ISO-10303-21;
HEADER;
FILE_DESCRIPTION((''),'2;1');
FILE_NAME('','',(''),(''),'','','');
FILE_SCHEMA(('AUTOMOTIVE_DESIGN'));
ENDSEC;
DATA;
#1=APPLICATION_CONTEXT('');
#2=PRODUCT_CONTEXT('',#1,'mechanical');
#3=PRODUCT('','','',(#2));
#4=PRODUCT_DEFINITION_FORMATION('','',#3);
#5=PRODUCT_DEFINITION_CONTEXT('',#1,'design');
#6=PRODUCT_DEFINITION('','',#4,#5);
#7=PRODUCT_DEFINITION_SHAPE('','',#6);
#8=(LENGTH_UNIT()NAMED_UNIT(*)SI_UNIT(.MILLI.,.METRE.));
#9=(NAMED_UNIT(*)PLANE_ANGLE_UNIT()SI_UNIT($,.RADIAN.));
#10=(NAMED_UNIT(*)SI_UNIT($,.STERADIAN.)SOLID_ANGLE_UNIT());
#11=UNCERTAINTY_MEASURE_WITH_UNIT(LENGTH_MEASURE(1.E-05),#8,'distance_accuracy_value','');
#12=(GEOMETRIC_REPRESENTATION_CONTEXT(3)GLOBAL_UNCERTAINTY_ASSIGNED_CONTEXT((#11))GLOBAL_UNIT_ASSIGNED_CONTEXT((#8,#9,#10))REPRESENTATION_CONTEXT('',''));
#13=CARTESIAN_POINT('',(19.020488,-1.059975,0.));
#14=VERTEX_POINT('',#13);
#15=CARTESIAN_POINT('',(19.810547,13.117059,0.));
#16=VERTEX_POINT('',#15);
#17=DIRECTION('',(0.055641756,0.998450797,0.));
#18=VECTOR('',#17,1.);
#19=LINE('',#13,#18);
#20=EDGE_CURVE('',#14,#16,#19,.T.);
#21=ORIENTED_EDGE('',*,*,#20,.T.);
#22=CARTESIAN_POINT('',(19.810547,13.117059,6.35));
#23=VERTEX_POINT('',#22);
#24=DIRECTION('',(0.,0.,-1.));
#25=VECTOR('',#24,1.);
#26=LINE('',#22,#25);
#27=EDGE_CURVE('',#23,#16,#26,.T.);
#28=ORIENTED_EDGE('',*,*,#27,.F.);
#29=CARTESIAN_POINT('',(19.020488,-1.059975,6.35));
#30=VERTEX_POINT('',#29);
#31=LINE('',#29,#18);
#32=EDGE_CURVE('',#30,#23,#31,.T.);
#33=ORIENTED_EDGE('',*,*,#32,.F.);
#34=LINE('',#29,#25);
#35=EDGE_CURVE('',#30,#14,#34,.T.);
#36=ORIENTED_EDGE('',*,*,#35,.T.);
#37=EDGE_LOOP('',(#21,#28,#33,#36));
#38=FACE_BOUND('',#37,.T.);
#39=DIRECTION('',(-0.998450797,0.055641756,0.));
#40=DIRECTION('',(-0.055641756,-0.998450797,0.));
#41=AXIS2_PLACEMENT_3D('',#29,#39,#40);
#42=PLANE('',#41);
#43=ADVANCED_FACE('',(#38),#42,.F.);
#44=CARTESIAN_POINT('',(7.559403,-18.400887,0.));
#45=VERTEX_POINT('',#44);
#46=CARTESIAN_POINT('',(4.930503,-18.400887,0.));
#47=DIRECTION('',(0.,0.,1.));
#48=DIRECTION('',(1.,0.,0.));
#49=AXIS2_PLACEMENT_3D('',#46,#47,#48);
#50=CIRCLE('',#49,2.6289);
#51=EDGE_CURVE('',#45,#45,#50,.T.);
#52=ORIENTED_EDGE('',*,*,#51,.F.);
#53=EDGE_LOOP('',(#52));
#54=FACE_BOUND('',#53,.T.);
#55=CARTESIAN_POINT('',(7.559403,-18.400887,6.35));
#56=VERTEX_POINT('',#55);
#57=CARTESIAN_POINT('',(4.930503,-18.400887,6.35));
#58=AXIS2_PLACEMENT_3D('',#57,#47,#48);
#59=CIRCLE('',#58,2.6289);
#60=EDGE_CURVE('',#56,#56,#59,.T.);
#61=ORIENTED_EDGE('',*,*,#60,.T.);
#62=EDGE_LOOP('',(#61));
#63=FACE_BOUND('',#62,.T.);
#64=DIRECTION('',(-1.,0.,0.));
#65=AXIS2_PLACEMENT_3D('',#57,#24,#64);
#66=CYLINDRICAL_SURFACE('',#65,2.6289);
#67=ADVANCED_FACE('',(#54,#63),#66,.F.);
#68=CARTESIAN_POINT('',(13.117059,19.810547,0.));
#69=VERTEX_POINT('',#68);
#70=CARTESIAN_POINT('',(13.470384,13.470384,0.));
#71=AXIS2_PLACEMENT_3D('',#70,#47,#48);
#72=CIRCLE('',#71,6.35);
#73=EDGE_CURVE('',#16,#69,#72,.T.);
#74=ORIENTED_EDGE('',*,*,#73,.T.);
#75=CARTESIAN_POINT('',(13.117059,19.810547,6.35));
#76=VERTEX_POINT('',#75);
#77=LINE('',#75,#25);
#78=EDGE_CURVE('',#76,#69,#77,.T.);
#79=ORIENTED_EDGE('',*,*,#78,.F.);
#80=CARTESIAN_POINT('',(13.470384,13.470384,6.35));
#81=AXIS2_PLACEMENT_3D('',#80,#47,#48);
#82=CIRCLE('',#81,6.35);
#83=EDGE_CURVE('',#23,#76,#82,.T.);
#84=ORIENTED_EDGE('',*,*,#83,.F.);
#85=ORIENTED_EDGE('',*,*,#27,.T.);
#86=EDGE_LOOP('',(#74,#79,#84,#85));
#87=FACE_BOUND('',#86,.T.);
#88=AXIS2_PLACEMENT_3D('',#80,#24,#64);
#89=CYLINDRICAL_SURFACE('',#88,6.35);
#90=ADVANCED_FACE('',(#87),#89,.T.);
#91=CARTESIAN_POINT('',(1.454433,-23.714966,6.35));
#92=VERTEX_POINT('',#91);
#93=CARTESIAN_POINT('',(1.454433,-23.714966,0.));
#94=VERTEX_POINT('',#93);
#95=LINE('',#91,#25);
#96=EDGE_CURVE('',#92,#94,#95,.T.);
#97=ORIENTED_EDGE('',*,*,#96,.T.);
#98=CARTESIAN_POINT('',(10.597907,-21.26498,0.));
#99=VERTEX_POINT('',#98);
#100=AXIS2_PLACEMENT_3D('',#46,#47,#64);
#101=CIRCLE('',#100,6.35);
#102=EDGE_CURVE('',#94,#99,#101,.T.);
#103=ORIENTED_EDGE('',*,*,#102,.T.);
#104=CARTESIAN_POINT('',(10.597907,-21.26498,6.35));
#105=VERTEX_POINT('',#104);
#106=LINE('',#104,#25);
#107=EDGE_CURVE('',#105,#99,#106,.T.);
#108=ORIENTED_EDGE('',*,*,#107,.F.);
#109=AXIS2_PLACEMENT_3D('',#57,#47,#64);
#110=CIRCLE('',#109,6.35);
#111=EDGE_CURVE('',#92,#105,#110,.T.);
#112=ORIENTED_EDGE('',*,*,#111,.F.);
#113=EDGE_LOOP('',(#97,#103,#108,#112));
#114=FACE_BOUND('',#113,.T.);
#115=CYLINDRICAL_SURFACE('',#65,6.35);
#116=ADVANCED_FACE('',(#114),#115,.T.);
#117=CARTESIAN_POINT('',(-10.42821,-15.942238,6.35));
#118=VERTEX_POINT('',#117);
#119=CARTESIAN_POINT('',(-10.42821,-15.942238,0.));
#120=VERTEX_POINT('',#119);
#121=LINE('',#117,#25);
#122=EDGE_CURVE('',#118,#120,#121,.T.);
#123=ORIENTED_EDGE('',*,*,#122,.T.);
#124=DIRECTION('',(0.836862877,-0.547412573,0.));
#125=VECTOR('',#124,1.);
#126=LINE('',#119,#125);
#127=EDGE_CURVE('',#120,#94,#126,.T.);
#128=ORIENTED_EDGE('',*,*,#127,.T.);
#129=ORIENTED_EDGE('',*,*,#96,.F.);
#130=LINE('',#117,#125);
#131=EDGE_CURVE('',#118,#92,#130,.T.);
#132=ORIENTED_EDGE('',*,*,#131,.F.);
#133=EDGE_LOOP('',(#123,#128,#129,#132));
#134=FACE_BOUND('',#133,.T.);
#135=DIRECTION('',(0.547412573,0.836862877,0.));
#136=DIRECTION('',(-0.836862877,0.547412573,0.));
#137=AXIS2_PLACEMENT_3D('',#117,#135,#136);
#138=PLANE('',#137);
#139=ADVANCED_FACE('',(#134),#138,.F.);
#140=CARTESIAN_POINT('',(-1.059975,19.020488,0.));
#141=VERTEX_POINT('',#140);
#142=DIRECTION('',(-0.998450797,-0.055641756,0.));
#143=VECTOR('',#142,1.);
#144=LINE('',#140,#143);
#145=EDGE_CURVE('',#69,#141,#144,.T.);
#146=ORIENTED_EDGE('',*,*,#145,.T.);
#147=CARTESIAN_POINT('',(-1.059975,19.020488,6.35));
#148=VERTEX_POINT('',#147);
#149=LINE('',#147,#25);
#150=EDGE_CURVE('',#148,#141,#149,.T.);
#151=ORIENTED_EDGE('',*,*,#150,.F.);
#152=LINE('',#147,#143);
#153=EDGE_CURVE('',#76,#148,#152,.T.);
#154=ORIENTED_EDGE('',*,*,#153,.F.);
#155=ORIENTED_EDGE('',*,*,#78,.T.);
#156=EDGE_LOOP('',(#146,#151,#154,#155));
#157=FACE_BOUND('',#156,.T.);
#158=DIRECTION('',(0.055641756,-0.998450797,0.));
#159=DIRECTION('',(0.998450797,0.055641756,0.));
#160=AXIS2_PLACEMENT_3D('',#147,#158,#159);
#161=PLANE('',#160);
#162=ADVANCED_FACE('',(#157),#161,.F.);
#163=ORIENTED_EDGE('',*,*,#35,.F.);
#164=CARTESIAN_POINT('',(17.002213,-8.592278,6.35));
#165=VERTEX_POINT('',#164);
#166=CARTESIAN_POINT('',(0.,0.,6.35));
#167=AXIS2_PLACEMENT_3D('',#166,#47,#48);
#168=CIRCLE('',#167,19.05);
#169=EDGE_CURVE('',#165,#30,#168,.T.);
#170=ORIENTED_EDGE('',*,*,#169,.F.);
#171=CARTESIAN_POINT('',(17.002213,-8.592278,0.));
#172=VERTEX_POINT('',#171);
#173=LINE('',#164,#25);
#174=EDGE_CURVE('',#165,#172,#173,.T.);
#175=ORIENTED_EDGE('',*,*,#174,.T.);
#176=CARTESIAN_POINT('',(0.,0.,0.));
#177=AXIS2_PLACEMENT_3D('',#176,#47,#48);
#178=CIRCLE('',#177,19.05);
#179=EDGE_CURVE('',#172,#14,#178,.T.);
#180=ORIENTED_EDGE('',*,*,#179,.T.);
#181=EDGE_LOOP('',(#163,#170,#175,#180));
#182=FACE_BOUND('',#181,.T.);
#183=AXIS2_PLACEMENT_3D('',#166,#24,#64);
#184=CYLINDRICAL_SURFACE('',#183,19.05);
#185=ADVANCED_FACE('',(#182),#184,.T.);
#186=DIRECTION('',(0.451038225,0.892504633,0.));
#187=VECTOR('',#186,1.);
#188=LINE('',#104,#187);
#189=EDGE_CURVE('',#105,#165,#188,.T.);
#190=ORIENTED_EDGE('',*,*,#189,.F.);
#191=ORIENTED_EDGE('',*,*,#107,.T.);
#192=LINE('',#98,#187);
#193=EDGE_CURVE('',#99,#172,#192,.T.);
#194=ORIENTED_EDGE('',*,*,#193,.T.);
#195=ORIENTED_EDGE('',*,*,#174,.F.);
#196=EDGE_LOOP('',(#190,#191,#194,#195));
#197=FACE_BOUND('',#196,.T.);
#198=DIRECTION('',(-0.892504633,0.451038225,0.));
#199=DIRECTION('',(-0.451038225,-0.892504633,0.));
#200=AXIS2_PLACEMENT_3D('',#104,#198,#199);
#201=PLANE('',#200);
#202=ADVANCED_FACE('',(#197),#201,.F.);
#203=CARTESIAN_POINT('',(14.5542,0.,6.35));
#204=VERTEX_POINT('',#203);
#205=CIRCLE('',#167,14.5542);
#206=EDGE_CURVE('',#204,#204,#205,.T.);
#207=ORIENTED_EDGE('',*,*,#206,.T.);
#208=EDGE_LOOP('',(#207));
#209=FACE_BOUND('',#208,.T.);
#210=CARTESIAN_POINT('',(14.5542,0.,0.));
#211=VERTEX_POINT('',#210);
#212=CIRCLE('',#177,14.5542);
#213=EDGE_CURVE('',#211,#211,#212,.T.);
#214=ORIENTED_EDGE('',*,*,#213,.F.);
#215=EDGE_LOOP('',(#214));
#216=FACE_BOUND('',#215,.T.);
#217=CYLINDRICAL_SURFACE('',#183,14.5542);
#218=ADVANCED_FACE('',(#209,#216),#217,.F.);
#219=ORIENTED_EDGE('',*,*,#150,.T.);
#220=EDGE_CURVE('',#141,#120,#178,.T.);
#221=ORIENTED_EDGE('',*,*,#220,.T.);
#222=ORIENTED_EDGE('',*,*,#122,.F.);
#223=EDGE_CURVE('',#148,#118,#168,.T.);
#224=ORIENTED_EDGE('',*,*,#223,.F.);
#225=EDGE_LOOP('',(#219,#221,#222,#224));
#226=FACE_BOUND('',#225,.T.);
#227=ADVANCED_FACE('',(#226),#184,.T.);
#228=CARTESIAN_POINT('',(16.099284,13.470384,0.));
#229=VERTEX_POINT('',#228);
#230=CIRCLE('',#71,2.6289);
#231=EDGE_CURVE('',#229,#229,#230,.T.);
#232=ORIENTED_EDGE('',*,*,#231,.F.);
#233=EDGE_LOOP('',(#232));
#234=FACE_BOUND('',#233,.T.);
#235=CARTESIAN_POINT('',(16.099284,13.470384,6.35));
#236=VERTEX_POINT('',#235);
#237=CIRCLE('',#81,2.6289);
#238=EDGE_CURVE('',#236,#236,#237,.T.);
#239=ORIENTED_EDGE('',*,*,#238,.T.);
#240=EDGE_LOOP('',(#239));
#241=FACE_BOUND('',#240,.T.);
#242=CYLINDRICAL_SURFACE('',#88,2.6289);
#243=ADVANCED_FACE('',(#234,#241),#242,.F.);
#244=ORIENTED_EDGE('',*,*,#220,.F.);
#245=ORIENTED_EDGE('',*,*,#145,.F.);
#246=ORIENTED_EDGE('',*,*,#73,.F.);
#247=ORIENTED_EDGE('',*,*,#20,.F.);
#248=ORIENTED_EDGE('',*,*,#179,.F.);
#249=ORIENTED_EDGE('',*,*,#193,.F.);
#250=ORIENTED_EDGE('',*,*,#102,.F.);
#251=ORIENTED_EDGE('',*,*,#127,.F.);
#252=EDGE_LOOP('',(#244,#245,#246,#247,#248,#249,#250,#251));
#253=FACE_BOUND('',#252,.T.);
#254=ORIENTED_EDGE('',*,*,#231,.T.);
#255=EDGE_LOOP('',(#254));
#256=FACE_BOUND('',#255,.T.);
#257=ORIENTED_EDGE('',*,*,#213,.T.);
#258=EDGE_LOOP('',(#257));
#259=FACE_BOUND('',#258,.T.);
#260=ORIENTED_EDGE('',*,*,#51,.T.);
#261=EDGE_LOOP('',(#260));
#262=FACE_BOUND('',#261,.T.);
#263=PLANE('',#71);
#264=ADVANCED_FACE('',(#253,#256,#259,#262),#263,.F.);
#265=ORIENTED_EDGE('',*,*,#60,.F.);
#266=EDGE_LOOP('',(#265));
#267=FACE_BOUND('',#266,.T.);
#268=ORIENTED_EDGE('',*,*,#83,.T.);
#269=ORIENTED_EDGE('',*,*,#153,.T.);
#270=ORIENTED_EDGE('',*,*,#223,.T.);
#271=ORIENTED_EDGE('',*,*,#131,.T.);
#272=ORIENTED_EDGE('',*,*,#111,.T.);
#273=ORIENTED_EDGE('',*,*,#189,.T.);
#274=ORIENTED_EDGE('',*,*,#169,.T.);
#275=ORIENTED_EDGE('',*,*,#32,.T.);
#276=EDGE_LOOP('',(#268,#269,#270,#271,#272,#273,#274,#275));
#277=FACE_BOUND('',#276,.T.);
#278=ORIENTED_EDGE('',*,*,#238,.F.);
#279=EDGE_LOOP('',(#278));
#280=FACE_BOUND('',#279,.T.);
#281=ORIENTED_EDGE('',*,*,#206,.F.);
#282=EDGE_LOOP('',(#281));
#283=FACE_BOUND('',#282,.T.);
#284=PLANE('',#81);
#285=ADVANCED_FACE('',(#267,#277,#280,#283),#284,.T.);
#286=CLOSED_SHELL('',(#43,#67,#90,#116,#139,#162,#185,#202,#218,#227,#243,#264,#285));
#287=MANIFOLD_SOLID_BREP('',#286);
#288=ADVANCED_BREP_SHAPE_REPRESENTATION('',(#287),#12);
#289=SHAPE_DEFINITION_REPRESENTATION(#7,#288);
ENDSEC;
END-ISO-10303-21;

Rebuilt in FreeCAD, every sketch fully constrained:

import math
import FreeCAD as App
import Part
import Sketcher

V = App.Vector
Q = App.Units.Quantity

doc = App.newDocument("Part")
body = doc.addObject("PartDesign::Body", "Body")

# Sketch on XY plane
sketch1 = body.newObject("Sketcher::SketchObject", "Sketch")
sketch1.AttachmentSupport = (doc.getObject("XY_Plane"), [""])
sketch1.MapMode = "FlatFace"
sketch1.addGeometry(Part.LineSegment(V(-10.4, -15.9, 0), V(1.5, -23.7, 0)), False)
sketch1.addGeometry(Part.ArcOfCircle(Part.Circle(V(4.9, -18.4, 0), V(0, 0, 1), 6.3), math.radians(-123), math.radians(-27)), False)
sketch1.addGeometry(Part.LineSegment(V(10.6, -21.3, 0), V(17, -8.6, 0)), False)
sketch1.addGeometry(Part.ArcOfCircle(Part.Circle(V(0, 0, 0), V(0, 0, 1), 19), math.radians(-27), math.radians(-3)), False)
sketch1.addGeometry(Part.LineSegment(V(19, -1.1, 0), V(19.8, 13.1, 0)), False)
sketch1.addGeometry(Part.ArcOfCircle(Part.Circle(V(13.5, 13.5, 0), V(0, 0, 1), 6.4), math.radians(-3), math.radians(93)), False)
sketch1.addGeometry(Part.LineSegment(V(13.1, 19.8, 0), V(-1.1, 19, 0)), False)
sketch1.addGeometry(Part.ArcOfCircle(Part.Circle(V(0, 0, 0), V(0, 0, 1), 19.1), math.radians(93), math.radians(237)), False)
sketch1.addGeometry(Part.Circle(V(4.9, -18.4, 0), V(0, 0, 1), 2.6), False)
sketch1.addGeometry(Part.Circle(V(0, 0, 0), V(0, 0, 1), 14.6), False)
sketch1.addGeometry(Part.Circle(V(13.5, 13.5, 0), V(0, 0, 1), 2.6), False)
sketch1.addConstraint(Sketcher.Constraint("Tangent", 0, 2, 1, 1))
sketch1.addConstraint(Sketcher.Constraint("Tangent", 1, 2, 2, 1))
sketch1.addConstraint(Sketcher.Constraint("Tangent", 2, 2, 3, 1))
sketch1.addConstraint(Sketcher.Constraint("Tangent", 3, 2, 4, 1))
sketch1.addConstraint(Sketcher.Constraint("Tangent", 4, 2, 5, 1))
sketch1.addConstraint(Sketcher.Constraint("Tangent", 5, 2, 6, 1))
sketch1.addConstraint(Sketcher.Constraint("Tangent", 6, 2, 7, 1))
sketch1.addConstraint(Sketcher.Constraint("Tangent", 7, 2, 0, 1))
sketch1.addConstraint(Sketcher.Constraint("Coincident", 3, 3, -1, 1))
sketch1.addConstraint(Sketcher.Constraint("Coincident", 7, 3, -1, 1))
sketch1.addConstraint(Sketcher.Constraint("Coincident", 9, 3, -1, 1))
sketch1.addConstraint(Sketcher.Constraint("Coincident", 8, 3, 1, 3))
sketch1.addConstraint(Sketcher.Constraint("Coincident", 10, 3, 5, 3))
sketch1.addConstraint(Sketcher.Constraint("Equal", 1, 5))
sketch1.addConstraint(Sketcher.Constraint("Equal", 3, 7))
sketch1.addConstraint(Sketcher.Constraint("Equal", 8, 10))
sketch1.addConstraint(Sketcher.Constraint("Equal", 2, 4))
sketch1.addConstraint(Sketcher.Constraint("Radius", 1, Q("0.25 in")))
sketch1.addConstraint(Sketcher.Constraint("Radius", 3, Q("0.75 in")))
sketch1.addConstraint(Sketcher.Constraint("Diameter", 8, Q("0.207 in")))
sketch1.addConstraint(Sketcher.Constraint("Diameter", 9, Q("1.146 in")))
sketch1.addConstraint(Sketcher.Constraint("DistanceY", 1, 2, 2, 2, 12.672702))
sketch1.addConstraint(Sketcher.Constraint("Distance", 0, 14.199032))
sketch1.addConstraint(Sketcher.Constraint("DistanceY", -1, 1, 4, 2, 13.117059))
pad1 = body.newObject("PartDesign::Pad", "Pad")
pad1.Profile = sketch1
pad1.Length = Q("0.25 in")

doc.recompute()
